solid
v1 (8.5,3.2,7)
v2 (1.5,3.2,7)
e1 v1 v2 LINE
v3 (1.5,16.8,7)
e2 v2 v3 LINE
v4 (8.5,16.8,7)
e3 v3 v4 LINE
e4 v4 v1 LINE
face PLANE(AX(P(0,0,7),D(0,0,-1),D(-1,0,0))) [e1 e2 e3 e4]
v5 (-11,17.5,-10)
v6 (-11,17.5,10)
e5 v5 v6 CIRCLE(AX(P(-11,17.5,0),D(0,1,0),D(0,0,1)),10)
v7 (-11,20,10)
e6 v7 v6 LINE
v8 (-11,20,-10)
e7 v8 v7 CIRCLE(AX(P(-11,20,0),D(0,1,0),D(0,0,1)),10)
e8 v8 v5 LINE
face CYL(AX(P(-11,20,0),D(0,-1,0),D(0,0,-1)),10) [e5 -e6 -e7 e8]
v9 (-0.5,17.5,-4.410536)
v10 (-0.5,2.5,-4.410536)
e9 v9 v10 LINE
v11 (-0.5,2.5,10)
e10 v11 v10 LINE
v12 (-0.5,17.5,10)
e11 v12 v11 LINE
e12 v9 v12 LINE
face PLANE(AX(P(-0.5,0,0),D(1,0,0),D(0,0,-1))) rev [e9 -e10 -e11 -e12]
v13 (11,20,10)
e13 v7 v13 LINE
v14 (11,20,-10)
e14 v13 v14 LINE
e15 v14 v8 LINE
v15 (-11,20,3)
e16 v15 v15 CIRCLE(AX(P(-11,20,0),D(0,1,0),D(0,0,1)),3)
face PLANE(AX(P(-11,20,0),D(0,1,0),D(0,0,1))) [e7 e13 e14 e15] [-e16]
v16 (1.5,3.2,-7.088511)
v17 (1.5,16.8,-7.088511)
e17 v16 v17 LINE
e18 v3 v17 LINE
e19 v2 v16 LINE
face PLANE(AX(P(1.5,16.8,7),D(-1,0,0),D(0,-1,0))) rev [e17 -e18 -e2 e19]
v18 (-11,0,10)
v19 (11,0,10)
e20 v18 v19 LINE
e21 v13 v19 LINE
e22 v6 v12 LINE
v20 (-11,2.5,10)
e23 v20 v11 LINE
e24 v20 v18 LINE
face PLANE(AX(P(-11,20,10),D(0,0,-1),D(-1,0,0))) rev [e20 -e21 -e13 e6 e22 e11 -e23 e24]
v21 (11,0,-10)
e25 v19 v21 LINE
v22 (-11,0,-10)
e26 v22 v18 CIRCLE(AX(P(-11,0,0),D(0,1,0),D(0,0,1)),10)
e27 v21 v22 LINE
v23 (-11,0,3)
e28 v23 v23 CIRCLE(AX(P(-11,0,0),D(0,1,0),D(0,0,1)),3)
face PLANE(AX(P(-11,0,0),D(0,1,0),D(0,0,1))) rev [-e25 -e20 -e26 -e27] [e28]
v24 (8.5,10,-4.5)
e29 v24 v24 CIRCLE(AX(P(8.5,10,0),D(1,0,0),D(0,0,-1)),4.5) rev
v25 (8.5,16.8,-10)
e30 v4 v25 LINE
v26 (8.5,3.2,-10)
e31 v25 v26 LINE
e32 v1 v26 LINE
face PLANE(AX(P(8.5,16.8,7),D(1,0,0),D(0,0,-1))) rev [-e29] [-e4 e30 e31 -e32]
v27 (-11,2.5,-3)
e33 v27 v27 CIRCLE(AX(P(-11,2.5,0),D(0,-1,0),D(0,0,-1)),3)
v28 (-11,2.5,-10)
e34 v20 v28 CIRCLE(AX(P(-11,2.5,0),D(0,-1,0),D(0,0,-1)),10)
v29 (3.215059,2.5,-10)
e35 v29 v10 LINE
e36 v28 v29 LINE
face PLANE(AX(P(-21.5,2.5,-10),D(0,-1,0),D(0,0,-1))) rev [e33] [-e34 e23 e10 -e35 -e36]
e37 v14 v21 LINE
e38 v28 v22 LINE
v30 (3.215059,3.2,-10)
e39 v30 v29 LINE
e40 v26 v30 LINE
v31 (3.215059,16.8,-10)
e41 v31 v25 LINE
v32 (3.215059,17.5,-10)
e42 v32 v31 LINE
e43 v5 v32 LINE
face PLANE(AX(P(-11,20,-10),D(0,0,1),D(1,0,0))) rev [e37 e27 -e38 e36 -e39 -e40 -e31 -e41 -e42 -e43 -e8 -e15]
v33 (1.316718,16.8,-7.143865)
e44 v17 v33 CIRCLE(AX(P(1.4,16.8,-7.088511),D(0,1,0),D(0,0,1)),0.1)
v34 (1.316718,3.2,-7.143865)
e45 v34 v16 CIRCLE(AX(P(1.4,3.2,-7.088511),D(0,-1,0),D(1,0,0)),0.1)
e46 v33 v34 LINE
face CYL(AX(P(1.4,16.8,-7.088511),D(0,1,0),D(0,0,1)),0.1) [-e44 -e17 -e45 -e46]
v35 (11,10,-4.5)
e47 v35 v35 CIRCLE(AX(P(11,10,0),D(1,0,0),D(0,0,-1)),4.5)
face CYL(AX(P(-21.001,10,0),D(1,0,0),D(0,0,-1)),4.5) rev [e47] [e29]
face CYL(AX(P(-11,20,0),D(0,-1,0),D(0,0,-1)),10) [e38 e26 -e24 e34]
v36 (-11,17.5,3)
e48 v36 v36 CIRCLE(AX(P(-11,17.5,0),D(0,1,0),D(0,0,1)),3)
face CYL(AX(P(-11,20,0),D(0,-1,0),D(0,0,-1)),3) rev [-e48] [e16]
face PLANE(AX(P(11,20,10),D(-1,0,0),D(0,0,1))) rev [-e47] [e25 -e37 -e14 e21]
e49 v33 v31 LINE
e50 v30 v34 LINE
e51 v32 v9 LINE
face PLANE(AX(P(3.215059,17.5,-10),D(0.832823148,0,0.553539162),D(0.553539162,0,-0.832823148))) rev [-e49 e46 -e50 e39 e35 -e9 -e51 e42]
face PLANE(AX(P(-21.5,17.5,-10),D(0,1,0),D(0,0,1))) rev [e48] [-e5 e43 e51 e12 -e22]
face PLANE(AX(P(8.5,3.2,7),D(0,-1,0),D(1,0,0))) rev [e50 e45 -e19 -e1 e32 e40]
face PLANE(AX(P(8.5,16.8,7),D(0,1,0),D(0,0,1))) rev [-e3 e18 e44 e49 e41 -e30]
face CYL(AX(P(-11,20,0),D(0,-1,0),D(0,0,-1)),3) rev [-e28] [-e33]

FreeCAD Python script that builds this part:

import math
import FreeCAD as App
import Part
import Sketcher

V = App.Vector


def edges_at(feature, points):
    """Names of the edges that pass closest to the given points."""
    edges = feature.Shape.Edges
    near = lambda p: min(range(len(edges)), key=lambda i: edges[i].distToShape(Part.Vertex(*p))[0])
    return sorted({f"Edge{near(p) + 1}" for p in points})


def add_polygon(sketch, points):
    """Adds a closed chain of lines whose ends are joined by coincident constraints."""
    first, n = sketch.GeometryCount, len(points)
    for a, b in zip(points, points[1:] + points[:1]):
        sketch.addGeometry(Part.LineSegment(App.Vector(*a, 0), App.Vector(*b, 0)), False)
    for i in range(n):
        sketch.addConstraint(Sketcher.Constraint("Coincident", first + i, 2, first + (i + 1) % n, 1))

doc = App.newDocument("Part")
params = doc.addObject("Spreadsheet::Sheet", "Params")
for row, (alias, value) in enumerate([
    ("sketch1_diameter", "6 mm"),
    ("sketch1_radius", "10 mm"),
    ("sketch1_width", "22 mm"),
    ("pad1_length", "20 mm"),
    ("sketch2_width", "7 mm"),
    ("sketch2_height", "13.6 mm"),
    ("pocket1_length", "17 mm"),
    ("sketch3_diameter", "9 mm"),
    ("sketch4_width", "15 mm"),
    ("sketch4_height", "20 mm"),
    ("pocket3_length", "21 mm"),
    ("pocket4_length", "15 mm"),
    ("fillet_radius", "0.1 mm"),
], start=1):
    params.set(f"A{row}", alias)
    params.set(f"B{row}", "=" + value)
    params.setAlias(f"B{row}", alias)

body = doc.addObject("PartDesign::Body", "Body")

# Sketch on XZ plane
sketch1 = body.newObject("Sketcher::SketchObject", "Sketch")
sketch1.AttachmentSupport = (doc.getObject("XZ_Plane"), [""])
sketch1.MapMode = "FlatFace"
sketch1.addGeometry([
    Part.LineSegment(V(-11, 10, 0), V(11, 10, 0)),  # 0
    Part.LineSegment(V(11, 10, 0), V(11, -10, 0)),  # 1
    Part.LineSegment(V(11, -10, 0), V(-11, -10, 0)),  # 2
    Part.ArcOfCircle(Part.Circle(V(-11, 0, 0), V(0, 0, 1), 10), math.radians(90), math.radians(270)),  # 3
    Part.Circle(V(-11, 0, 0), V(0, 0, 1), 3),  # 4
], False)
sketch1.addConstraint([
    Sketcher.Constraint("Coincident", 0, 2, 1, 1),
    Sketcher.Constraint("Coincident", 1, 2, 2, 1),
    Sketcher.Constraint("Tangent", 2, 2, 3, 2),
    Sketcher.Constraint("Tangent", 3, 1, 0, 1),
    Sketcher.Constraint("Horizontal", 0),
    Sketcher.Constraint("Vertical", 1),
    Sketcher.Constraint("Horizontal", 2),
    Sketcher.Constraint("Coincident", 4, 3, 3, 3),
    Sketcher.Constraint("Symmetric", 0, 2, 2, 2, -1, 1),
    Sketcher.Constraint("Diameter", 4, 6.0),
    Sketcher.Constraint("Radius", 3, 10.0),
    Sketcher.Constraint("DistanceX", 0, 1, 0, 2, 22.0),
])
sketch1.setExpression("Constraints[9]", "Params.sketch1_diameter")
sketch1.setExpression("Constraints[10]", "Params.sketch1_radius")
sketch1.setExpression("Constraints[11]", "Params.sketch1_width")
pad1 = body.newObject("PartDesign::Pad", "Pad")
pad1.Profile = sketch1
pad1.setExpression("Length", "Params.pad1_length")
pad1.Reversed = True

# Sketch on XY plane
sketch2 = body.newObject("Sketcher::SketchObject", "Sketch001")
sketch2.AttachmentSupport = (doc.getObject("XY_Plane"), [""])
sketch2.MapMode = "FlatFace"
sketch2.AttachmentOffset = App.Placement(V(0, 0, -10), App.Rotation())
add_polygon(sketch2, [(8.5, 16.8), (8.5, 3.2), (1.5, 3.2), (1.5, 16.8)])  # lines 0-3
sketch2.addConstraint([
    Sketcher.Constraint("Vertical", 0),
    Sketcher.Constraint("Horizontal", 1),
    Sketcher.Constraint("Vertical", 2),
    Sketcher.Constraint("Horizontal", 3),
    Sketcher.Constraint("DistanceX", 1, 2, 1, 1, 7.0),
    Sketcher.Constraint("DistanceY", 0, 2, 0, 1, 13.6),
    Sketcher.Constraint("DistanceX", -1, 1, 0, 2, 8.5),
    Sketcher.Constraint("DistanceY", -1, 1, 0, 2, 3.2),
])
sketch2.setExpression("Constraints[8]", "Params.sketch2_width")
sketch2.setExpression("Constraints[9]", "Params.sketch2_height")
pocket1 = body.newObject("PartDesign::Pocket", "Pocket")
pocket1.Profile = sketch2
pocket1.setExpression("Length", "Params.pocket1_length")
pocket1.Reversed = True

# Sketch on YZ plane
sketch3 = body.newObject("Sketcher::SketchObject", "Sketch002")
sketch3.AttachmentSupport = (doc.getObject("YZ_Plane"), [""])
sketch3.MapMode = "FlatFace"
sketch3.AttachmentOffset = App.Placement(V(0, 0, 11), App.Rotation())
sketch3.addGeometry(Part.Circle(V(10, 0, 0), V(0, 0, 1), 4.5), False)
sketch3.addConstraint([
    Sketcher.Constraint("PointOnObject", 0, 3, -1),
    Sketcher.Constraint("Diameter", 0, 9.0),
    Sketcher.Constraint("DistanceX", -1, 1, 0, 3, 10.0),
])
sketch3.setExpression("Constraints[1]", "Params.sketch3_diameter")
pocket2 = body.newObject("PartDesign::Pocket", "Pocket001")
pocket2.Profile = sketch3
pocket2.Type = "UpToFirst"

# Sketch on YZ plane
sketch4 = body.newObject("Sketcher::SketchObject", "Sketch003")
sketch4.AttachmentSupport = (doc.getObject("YZ_Plane"), [""])
sketch4.MapMode = "FlatFace"
sketch4.AttachmentOffset = App.Placement(V(0, 0, -11), App.Rotation())
add_polygon(sketch4, [(17.5, -10), (17.5, 10), (2.5, 10), (2.5, -10)])  # lines 0-3
sketch4.addConstraint([
    Sketcher.Constraint("Vertical", 0),
    Sketcher.Constraint("Horizontal", 1),
    Sketcher.Constraint("Vertical", 2),
    Sketcher.Constraint("Horizontal", 3),
    Sketcher.Constraint("DistanceX", 1, 2, 1, 1, 15.0),
    Sketcher.Constraint("DistanceY", 0, 1, 0, 2, 20.0),
    Sketcher.Constraint("DistanceY", -1, 1, 0, 2, 10.0),
    Sketcher.Constraint("DistanceX", -1, 1, 0, 2, 17.5),
])
sketch4.setExpression("Constraints[8]", "Params.sketch4_width")
sketch4.setExpression("Constraints[9]", "Params.sketch4_height")
pocket3 = body.newObject("PartDesign::Pocket", "Pocket002")
pocket3.Profile = sketch4
pocket3.setExpression("Length", "Params.pocket3_length")
pocket3.Midplane = True

# Sketch on XZ plane
sketch5 = body.newObject("Sketcher::SketchObject", "Sketch004")
sketch5.AttachmentSupport = (doc.getObject("XZ_Plane"), [""])
sketch5.MapMode = "FlatFace"
sketch5.AttachmentOffset = App.Placement(V(0, 0, -2.5), App.Rotation())
add_polygon(sketch5, [(3.215059, -10), (-0.5, -4.410536), (-0.5, -10)])  # lines 0-2
sketch5.addConstraint([
    Sketcher.Constraint("Vertical", 1),
    Sketcher.Constraint("Horizontal", 2),
    Sketcher.Constraint("DistanceY", 1, 2, -1, 1, 10.0),
    Sketcher.Constraint("DistanceX", 0, 2, -1, 1, 0.5),
    Sketcher.Constraint("DistanceX", 2, 1, 2, 2, 3.715059),
    Sketcher.Constraint("DistanceY", 1, 2, 1, 1, 5.589464),
])
pocket4 = body.newObject("PartDesign::Pocket", "Pocket003")
pocket4.Profile = sketch5
pocket4.setExpression("Length", "Params.pocket4_length")
doc.recompute()

fillet = body.newObject("PartDesign::Fillet", "Fillet")
fillet.Base = (pocket4, edges_at(pocket4, [(1.5, 10, -7.42)]))
fillet.setExpression("Radius", "Params.fillet_radius")

doc.recompute()
